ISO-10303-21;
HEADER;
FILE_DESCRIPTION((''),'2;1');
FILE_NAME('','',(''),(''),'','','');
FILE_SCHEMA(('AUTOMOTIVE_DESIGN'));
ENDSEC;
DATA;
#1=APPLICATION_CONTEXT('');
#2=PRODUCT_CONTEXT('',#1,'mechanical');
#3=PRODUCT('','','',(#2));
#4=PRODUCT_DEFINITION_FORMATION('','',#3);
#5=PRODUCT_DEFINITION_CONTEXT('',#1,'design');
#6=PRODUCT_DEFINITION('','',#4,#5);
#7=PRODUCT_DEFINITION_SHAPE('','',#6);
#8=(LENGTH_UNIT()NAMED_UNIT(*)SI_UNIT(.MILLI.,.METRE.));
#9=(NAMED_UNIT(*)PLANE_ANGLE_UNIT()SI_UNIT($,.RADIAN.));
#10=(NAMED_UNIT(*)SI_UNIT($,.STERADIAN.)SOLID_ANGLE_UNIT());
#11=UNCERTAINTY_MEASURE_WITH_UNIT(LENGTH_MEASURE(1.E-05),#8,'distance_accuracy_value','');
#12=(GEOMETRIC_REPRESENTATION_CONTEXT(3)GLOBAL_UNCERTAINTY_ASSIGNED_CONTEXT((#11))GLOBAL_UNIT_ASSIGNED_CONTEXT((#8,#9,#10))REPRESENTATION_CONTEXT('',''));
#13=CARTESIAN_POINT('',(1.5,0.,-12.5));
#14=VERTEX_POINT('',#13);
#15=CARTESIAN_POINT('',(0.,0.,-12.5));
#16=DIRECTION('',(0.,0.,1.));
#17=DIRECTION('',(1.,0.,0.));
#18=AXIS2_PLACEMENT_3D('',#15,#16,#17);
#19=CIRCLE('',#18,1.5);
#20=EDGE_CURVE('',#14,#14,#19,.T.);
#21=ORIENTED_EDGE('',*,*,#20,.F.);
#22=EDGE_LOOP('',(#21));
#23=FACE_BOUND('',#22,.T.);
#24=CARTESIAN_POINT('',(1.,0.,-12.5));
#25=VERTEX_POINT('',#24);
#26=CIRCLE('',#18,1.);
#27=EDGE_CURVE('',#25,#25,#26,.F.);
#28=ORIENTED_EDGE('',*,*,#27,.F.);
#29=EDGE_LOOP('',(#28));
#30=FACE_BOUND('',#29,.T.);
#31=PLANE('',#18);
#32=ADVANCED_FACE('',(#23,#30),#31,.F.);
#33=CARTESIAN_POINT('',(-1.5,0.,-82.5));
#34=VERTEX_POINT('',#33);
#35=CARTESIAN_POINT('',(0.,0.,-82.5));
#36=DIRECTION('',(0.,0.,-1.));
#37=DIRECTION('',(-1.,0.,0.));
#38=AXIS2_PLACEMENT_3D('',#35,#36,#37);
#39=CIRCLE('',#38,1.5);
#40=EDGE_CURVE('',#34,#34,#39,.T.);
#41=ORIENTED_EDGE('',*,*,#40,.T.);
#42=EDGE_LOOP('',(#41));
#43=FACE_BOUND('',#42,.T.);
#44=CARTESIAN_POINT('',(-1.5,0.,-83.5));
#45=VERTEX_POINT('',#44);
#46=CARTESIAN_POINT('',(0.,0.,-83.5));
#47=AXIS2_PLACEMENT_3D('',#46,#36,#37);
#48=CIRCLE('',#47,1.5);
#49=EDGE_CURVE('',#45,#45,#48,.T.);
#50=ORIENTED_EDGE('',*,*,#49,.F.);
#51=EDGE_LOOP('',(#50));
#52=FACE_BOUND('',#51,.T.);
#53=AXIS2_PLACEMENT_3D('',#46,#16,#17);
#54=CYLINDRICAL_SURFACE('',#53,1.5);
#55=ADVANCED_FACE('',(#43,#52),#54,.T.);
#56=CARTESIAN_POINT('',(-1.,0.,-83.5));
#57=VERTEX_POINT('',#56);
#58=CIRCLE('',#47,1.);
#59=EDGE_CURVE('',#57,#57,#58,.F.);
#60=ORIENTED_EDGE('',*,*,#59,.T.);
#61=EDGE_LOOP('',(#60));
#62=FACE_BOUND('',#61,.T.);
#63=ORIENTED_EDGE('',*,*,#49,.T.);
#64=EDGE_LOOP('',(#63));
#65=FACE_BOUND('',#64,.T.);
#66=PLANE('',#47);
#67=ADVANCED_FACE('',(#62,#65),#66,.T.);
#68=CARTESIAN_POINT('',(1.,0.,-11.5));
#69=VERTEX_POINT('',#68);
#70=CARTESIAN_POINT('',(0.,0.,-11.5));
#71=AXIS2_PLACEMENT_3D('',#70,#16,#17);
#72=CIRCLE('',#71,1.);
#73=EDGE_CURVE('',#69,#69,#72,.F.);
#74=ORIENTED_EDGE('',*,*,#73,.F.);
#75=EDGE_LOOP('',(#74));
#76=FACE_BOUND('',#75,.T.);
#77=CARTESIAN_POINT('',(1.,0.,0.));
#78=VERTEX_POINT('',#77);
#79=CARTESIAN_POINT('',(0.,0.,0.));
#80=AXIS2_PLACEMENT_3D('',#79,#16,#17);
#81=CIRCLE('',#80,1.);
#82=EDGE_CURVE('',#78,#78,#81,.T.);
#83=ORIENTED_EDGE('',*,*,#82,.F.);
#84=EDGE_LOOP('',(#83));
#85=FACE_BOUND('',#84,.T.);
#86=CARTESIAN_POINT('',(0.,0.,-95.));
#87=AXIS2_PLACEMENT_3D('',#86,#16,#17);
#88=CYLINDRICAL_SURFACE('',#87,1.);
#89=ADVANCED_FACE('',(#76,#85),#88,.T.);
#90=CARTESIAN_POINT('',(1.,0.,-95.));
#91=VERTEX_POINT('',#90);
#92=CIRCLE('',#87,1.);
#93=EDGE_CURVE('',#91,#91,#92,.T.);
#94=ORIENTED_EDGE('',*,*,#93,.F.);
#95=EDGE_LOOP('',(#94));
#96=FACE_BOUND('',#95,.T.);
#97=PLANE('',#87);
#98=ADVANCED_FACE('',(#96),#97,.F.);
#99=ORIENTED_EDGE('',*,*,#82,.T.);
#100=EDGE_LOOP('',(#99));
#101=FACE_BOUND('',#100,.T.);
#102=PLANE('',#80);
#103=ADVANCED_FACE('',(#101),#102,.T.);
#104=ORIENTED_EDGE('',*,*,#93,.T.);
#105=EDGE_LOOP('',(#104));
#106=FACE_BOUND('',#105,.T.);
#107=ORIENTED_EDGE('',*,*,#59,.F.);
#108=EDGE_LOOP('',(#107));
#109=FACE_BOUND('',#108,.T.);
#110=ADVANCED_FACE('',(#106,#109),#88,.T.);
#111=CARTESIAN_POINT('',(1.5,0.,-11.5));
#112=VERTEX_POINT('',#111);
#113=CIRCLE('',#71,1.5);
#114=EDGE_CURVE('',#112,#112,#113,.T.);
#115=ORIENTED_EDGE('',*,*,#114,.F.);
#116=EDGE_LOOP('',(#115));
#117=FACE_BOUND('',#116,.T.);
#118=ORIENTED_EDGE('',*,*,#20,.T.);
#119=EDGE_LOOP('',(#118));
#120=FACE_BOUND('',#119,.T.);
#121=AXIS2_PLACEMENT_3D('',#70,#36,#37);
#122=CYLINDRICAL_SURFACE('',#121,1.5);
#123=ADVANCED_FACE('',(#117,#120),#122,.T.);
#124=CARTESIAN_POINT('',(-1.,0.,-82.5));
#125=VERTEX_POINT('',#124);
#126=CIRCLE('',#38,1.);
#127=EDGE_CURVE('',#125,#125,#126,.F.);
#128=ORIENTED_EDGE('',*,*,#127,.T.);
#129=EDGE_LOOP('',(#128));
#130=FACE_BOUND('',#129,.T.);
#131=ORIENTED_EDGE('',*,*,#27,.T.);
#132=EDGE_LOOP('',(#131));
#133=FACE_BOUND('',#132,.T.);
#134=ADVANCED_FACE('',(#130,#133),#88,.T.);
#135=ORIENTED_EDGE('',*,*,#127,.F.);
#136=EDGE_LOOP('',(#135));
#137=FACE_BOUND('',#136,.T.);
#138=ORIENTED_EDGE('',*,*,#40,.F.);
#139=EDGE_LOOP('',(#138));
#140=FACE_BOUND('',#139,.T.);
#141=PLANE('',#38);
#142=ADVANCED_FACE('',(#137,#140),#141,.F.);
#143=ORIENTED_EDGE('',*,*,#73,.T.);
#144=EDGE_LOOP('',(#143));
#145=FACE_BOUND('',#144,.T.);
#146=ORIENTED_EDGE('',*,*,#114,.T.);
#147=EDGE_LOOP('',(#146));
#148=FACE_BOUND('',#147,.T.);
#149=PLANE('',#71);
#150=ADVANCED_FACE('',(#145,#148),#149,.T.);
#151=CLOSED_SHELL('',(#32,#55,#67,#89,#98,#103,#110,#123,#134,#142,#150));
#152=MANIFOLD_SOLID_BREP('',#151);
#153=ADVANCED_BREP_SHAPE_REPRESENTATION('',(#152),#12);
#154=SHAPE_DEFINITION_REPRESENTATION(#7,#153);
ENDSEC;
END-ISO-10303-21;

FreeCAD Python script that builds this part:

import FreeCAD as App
import Part
import Sketcher

V = App.Vector
Q = App.Units.Quantity

doc = App.newDocument("Part")
body = doc.addObject("PartDesign::Body", "Body")

# Sketch on XY plane
sketch1 = body.newObject("Sketcher::SketchObject", "Sketch")
sketch1.AttachmentSupport = (doc.getObject("XY_Plane"), [""])
sketch1.MapMode = "FlatFace"
sketch1.addGeometry(Part.Circle(V(0, 0, 0), V(0, 0, 1), 1), False)
sketch1.addConstraint(Sketcher.Constraint("Coincident", 0, 3, -1, 1))
sketch1.addConstraint(Sketcher.Constraint("Diameter", 0, Q("2 mm")))
pad1 = body.newObject("PartDesign::Pad", "Pad")
pad1.Profile = sketch1
pad1.Length = 95
pad1.Reversed = True

# Sketch on XY plane
sketch2 = body.newObject("Sketcher::SketchObject", "Sketch001")
sketch2.AttachmentSupport = (doc.getObject("XY_Plane"), [""])
sketch2.MapMode = "FlatFace"
sketch2.AttachmentOffset = App.Placement(V(0, 0, -12.5), App.Rotation())
sketch2.addGeometry(Part.Circle(V(0, 0, 0), V(0, 0, 1), 1.5), False)
sketch2.addConstraint(Sketcher.Constraint("Coincident", 0, 3, -1, 1))
sketch2.addConstraint(Sketcher.Constraint("Diameter", 0, Q("3 mm")))
pad2 = body.newObject("PartDesign::Pad", "Pad001")
pad2.Profile = sketch2
pad2.Length = 1

# Sketch on XY plane
sketch3 = body.newObject("Sketcher::SketchObject", "Sketch002")
sketch3.AttachmentSupport = (doc.getObject("XY_Plane"), [""])
sketch3.MapMode = "FlatFace"
sketch3.AttachmentOffset = App.Placement(V(0, 0, -83.5), App.Rotation())
sketch3.addGeometry(Part.Circle(V(0, 0, 0), V(0, 0, 1), 1.5), False)
sketch3.addConstraint(Sketcher.Constraint("Coincident", 0, 3, -1, 1))
sketch3.addConstraint(Sketcher.Constraint("Diameter", 0, Q("3 mm")))
pad3 = body.newObject("PartDesign::Pad", "Pad002")
pad3.Profile = sketch3
pad3.Length = 1

doc.recompute()
